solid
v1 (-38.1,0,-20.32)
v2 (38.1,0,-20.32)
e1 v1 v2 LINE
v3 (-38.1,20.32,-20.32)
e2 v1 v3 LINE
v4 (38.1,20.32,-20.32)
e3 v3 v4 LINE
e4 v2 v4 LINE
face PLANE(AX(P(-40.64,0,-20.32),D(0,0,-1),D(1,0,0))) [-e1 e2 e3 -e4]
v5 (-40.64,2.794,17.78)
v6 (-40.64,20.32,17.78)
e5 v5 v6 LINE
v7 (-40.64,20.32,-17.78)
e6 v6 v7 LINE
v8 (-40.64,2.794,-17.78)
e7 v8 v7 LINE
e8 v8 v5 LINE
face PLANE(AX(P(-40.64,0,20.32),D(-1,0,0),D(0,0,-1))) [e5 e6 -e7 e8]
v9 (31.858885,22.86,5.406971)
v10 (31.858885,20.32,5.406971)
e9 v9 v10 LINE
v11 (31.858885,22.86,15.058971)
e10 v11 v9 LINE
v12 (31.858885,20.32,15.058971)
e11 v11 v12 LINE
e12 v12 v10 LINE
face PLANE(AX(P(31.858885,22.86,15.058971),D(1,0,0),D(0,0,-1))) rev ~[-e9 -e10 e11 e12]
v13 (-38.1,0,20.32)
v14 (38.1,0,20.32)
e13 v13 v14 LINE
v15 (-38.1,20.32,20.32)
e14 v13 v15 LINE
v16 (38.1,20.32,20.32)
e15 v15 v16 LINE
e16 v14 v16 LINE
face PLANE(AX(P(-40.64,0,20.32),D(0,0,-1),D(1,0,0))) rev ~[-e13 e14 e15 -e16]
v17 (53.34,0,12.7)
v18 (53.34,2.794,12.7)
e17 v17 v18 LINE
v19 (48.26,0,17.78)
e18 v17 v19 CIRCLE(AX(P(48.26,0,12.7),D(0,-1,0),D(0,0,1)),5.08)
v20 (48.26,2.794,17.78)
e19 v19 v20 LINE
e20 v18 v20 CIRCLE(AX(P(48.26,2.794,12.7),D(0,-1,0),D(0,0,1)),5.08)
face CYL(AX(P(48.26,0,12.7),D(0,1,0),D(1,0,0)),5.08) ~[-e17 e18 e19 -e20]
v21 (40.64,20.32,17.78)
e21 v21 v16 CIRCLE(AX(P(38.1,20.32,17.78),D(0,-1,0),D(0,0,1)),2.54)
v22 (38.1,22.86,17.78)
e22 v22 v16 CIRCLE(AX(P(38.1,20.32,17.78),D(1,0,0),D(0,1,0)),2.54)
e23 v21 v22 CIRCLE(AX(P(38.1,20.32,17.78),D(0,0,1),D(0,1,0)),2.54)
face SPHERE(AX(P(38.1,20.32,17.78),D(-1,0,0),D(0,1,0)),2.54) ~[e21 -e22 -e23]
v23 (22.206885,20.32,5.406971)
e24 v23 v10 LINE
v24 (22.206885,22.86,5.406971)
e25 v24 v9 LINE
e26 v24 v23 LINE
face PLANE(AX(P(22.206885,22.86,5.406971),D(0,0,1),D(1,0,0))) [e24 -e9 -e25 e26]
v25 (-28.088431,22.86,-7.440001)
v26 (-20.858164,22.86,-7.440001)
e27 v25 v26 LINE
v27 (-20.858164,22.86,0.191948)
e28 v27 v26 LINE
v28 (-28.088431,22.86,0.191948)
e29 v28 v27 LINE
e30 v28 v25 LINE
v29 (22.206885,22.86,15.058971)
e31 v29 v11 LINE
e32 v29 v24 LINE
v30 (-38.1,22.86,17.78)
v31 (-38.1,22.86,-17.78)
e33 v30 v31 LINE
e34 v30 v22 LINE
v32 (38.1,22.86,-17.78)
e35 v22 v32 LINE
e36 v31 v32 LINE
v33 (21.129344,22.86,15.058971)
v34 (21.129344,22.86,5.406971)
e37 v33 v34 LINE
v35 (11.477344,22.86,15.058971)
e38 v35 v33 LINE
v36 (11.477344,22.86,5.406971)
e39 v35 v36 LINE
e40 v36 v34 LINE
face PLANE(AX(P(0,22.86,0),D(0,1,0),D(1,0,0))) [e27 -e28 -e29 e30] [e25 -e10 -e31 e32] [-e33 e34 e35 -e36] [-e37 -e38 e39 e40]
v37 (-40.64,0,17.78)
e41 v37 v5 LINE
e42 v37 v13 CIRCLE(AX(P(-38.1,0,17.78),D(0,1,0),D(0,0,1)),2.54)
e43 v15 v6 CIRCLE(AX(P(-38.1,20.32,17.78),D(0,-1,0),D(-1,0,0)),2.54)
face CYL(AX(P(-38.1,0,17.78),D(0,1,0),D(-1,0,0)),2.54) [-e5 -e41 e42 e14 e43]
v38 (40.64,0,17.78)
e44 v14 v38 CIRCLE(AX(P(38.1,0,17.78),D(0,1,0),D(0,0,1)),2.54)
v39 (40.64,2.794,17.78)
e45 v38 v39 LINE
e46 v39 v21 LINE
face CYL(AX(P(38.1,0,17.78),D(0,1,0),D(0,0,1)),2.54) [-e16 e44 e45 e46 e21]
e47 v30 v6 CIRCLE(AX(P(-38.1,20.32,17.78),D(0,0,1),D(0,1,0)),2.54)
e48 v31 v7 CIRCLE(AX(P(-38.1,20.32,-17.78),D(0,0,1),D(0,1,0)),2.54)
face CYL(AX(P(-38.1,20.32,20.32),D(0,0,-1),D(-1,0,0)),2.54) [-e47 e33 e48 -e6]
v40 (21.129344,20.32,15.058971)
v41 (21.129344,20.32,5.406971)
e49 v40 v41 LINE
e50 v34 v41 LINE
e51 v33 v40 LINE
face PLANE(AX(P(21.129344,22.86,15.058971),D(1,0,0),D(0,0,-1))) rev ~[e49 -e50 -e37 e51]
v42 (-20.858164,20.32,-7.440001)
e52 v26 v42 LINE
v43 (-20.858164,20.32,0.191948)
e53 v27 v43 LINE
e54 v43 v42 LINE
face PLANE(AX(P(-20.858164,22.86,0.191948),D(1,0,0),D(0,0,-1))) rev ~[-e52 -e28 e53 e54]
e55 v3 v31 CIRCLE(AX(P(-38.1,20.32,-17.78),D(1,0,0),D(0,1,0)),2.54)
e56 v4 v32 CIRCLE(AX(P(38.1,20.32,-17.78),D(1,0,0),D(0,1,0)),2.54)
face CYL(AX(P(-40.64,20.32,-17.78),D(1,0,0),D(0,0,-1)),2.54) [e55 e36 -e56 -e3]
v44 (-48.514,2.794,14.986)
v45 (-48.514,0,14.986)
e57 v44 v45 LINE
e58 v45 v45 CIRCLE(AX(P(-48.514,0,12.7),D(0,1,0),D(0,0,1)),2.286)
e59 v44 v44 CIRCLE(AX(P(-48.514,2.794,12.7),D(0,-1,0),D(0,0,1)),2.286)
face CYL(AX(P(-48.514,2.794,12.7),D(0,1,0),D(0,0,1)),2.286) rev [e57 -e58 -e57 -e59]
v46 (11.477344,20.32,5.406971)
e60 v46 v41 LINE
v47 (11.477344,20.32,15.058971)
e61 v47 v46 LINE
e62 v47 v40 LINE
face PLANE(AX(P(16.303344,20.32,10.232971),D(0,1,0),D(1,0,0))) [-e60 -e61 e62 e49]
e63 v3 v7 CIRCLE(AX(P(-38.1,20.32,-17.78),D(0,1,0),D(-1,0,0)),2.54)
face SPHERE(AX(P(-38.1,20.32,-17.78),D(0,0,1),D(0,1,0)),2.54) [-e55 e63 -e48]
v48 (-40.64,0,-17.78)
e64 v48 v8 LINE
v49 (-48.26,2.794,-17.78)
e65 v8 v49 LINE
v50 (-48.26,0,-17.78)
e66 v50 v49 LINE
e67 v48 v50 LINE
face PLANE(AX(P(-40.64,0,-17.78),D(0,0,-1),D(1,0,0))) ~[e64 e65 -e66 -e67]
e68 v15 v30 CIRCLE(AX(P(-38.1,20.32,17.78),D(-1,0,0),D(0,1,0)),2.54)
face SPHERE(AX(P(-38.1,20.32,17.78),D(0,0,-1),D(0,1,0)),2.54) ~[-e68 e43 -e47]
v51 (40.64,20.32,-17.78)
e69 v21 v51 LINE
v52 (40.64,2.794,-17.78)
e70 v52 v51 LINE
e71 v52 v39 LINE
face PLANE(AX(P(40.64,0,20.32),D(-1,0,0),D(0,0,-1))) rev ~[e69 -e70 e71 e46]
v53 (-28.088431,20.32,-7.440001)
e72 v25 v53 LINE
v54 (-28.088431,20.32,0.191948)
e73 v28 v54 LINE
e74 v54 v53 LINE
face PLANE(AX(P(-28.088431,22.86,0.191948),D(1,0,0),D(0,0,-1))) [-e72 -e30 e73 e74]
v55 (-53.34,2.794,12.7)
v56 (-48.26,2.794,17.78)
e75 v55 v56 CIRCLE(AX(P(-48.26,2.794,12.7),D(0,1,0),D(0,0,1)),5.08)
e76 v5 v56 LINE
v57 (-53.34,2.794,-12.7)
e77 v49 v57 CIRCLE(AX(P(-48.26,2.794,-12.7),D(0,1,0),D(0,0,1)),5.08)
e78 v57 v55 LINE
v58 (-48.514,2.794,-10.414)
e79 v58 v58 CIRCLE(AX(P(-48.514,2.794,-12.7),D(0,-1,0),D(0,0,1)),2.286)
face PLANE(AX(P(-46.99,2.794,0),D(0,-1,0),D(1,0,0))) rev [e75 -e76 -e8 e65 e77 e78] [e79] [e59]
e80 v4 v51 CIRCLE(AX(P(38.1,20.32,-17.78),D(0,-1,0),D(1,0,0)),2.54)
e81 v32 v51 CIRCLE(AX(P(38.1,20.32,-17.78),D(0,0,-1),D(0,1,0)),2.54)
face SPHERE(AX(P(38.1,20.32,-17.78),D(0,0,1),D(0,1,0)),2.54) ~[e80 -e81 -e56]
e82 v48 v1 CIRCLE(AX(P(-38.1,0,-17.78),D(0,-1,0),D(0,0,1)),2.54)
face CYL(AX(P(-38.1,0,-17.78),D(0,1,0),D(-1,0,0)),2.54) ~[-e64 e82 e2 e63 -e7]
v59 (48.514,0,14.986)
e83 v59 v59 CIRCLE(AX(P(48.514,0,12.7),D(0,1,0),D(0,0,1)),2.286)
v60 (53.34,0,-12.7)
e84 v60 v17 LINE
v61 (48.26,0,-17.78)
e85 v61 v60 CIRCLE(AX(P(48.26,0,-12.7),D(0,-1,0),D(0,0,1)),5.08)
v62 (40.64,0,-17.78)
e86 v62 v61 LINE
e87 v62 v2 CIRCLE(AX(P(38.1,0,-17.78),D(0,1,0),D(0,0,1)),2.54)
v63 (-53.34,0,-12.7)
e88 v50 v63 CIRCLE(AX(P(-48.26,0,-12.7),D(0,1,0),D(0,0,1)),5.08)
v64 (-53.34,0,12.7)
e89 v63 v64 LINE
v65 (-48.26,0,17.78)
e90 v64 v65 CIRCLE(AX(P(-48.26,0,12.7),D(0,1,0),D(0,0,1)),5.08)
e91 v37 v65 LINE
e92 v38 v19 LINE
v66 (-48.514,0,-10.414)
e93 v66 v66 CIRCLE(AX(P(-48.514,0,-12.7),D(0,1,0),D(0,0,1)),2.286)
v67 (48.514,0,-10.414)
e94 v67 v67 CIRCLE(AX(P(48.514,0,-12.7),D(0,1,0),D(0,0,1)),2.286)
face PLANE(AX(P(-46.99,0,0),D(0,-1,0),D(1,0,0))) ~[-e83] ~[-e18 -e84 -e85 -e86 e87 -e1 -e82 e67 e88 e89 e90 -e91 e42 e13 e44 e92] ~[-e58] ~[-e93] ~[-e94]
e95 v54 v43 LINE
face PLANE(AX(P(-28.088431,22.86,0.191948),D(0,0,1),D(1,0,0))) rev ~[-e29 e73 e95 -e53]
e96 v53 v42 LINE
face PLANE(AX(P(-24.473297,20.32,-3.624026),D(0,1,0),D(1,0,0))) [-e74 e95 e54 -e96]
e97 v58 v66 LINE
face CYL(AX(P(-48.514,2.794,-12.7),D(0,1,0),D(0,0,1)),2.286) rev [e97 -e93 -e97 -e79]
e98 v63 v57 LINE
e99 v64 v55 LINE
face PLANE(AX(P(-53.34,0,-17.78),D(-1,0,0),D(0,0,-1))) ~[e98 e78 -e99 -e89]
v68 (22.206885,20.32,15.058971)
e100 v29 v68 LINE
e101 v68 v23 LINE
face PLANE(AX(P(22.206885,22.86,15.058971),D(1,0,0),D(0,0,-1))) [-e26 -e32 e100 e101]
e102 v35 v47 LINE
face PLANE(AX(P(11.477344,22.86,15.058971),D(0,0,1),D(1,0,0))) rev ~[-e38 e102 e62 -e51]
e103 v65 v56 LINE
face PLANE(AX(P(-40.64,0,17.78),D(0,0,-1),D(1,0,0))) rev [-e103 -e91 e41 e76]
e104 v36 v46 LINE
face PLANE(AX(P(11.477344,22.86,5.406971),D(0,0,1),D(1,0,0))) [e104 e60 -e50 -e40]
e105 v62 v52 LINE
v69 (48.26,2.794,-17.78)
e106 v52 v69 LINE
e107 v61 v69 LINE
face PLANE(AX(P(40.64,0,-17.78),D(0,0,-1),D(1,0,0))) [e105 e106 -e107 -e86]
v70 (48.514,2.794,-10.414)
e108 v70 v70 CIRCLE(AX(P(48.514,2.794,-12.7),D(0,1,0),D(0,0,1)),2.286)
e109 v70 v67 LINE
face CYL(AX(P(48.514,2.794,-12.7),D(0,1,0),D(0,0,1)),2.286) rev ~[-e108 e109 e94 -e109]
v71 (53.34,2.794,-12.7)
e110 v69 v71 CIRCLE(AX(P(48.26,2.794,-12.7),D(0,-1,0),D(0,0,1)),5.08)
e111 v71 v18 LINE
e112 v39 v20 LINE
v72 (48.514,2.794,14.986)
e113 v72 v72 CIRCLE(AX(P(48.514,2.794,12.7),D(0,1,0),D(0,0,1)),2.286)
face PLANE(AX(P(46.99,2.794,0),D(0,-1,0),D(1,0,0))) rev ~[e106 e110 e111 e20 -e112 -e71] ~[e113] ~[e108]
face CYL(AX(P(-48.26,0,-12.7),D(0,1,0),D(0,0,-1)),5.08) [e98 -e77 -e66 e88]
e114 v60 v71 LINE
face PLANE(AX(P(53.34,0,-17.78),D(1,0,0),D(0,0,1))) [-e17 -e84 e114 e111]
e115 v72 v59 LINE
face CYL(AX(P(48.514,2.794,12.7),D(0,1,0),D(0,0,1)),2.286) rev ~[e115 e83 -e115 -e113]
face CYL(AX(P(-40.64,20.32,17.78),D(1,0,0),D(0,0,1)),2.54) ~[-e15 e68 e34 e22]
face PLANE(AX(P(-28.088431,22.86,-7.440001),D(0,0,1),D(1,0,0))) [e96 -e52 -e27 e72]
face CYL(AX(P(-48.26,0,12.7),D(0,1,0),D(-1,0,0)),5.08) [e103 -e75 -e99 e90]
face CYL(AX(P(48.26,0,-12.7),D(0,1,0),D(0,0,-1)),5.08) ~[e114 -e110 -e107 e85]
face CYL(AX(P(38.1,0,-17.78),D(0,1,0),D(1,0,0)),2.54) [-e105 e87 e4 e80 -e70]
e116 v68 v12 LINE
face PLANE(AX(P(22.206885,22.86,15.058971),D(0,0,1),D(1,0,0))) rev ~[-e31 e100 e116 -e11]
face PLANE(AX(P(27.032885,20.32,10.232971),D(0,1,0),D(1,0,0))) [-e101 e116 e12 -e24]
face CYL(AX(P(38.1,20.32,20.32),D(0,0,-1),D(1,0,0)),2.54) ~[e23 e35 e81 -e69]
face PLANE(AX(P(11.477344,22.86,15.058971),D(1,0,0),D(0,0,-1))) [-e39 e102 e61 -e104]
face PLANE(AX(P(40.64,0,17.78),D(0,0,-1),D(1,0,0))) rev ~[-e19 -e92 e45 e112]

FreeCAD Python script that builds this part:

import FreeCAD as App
import Part
import Sketcher
Q = App.Units.Quantity


def edges_at(feature, points):
    """Names of the edges that pass closest to the given points."""
    edges = feature.Shape.Edges
    near = lambda p: min(range(len(edges)), key=lambda i: edges[i].distToShape(Part.Vertex(*p))[0])
    return sorted({f"Edge{near(p) + 1}" for p in points})

doc = App.newDocument("Part")
body = doc.addObject("PartDesign::Body", "Body")

# Sketch on XZ plane
sketch1 = doc.addObject("Sketcher::SketchObject", "Sketch")
body.addObject(sketch1)
sketch1.AttachmentSupport = (doc.XZ_Plane, [""])
sketch1.MapMode = "FlatFace"
sketch1.addGeometry(Part.LineSegment(App.Vector(-40.64, -20.32, 0), App.Vector(-40.64, 20.32, 0)), False)
sketch1.addGeometry(Part.LineSegment(App.Vector(-40.64, 20.32, 0), App.Vector(40.64, 20.32, 0)), False)
sketch1.addGeometry(Part.LineSegment(App.Vector(40.64, 20.32, 0), App.Vector(40.64, -20.32, 0)), False)
sketch1.addGeometry(Part.LineSegment(App.Vector(40.64, -20.32, 0), App.Vector(-40.64, -20.32, 0)), False)
sketch1.addConstraint(Sketcher.Constraint("Coincident", 0, 2, 1, 1))
sketch1.addConstraint(Sketcher.Constraint("Coincident", 1, 2, 2, 1))
sketch1.addConstraint(Sketcher.Constraint("Coincident", 2, 2, 3, 1))
sketch1.addConstraint(Sketcher.Constraint("Coincident", 3, 2, 0, 1))
sketch1.addConstraint(Sketcher.Constraint("Vertical", 0))
sketch1.addConstraint(Sketcher.Constraint("Horizontal", 1))
sketch1.addConstraint(Sketcher.Constraint("Vertical", 2))
sketch1.addConstraint(Sketcher.Constraint("Horizontal", 3))
sketch1.addConstraint(Sketcher.Constraint("Symmetric", 0, 2, 2, 2, -1, 1))
sketch1.addConstraint(Sketcher.Constraint("DistanceX", 1, 1, 1, 2, Q("3.2 in")))
sketch1.addConstraint(Sketcher.Constraint("DistanceY", 0, 1, 0, 2, Q("1.6 in")))
pad1 = doc.addObject("PartDesign::Pad", "Pad")
body.addObject(pad1)
pad1.Profile = sketch1
pad1.Length = Q("0.9 in")
pad1.Reversed = True
doc.recompute()

fillet = doc.addObject("PartDesign::Fillet", "Fillet")
body.addObject(fillet)
fillet.Base = (pad1, edges_at(pad1, [
    (-40.64, 22.86, 0),
    (0, 22.86, 20.32),
    (40.64, 22.86, 0),
    (0, 22.86, -20.32),
    (40.64, 11.43, 20.32),
    (-40.64, 11.43, 20.32),
    (-40.64, 11.43, -20.32),
    (40.64, 11.43, -20.32),
]))
fillet.Radius = Q("0.1 in")

# Sketch on XZ plane
sketch2 = doc.addObject("Sketcher::SketchObject", "Sketch001")
body.addObject(sketch2)
sketch2.AttachmentSupport = (doc.XZ_Plane, [""])
sketch2.MapMode = "FlatFace"
sketch2.addGeometry(Part.LineSegment(App.Vector(40.64, 17.78, 0), App.Vector(40.64, -17.78, 0)), False)
sketch2.addGeometry(Part.LineSegment(App.Vector(40.64, -17.78, 0), App.Vector(53.34, -17.78, 0)), False)
sketch2.addGeometry(Part.LineSegment(App.Vector(53.34, -17.78, 0), App.Vector(53.34, 17.78, 0)), False)
sketch2.addGeometry(Part.LineSegment(App.Vector(53.34, 17.78, 0), App.Vector(40.64, 17.78, 0)), False)
sketch2.addConstraint(Sketcher.Constraint("Coincident", 0, 2, 1, 1))
sketch2.addConstraint(Sketcher.Constraint("Coincident", 1, 2, 2, 1))
sketch2.addConstraint(Sketcher.Constraint("Coincident", 2, 2, 3, 1))
sketch2.addConstraint(Sketcher.Constraint("Coincident", 3, 2, 0, 1))
sketch2.addConstraint(Sketcher.Constraint("Vertical", 0))
sketch2.addConstraint(Sketcher.Constraint("Horizontal", 1))
sketch2.addConstraint(Sketcher.Constraint("Vertical", 2))
sketch2.addConstraint(Sketcher.Constraint("Horizontal", 3))
sketch2.addConstraint(Sketcher.Constraint("DistanceX", 1, 1, 1, 2, Q("0.5 in")))
sketch2.addConstraint(Sketcher.Constraint("DistanceY", 0, 2, 0, 1, Q("1.4 in")))
sketch2.addConstraint(Sketcher.Constraint("DistanceX", -1, 1, 0, 2, Q("1.6 in")))
sketch2.addConstraint(Sketcher.Constraint("DistanceY", 0, 2, -1, 1, Q("0.7 in")))
pad2 = doc.addObject("PartDesign::Pad", "Pad001")
body.addObject(pad2)
pad2.Profile = sketch2
pad2.Length = Q("0.11 in")
pad2.Reversed = True
doc.recompute()

fillet2 = doc.addObject("PartDesign::Fillet", "Fillet001")
body.addObject(fillet2)
fillet2.Base = (pad2, edges_at(pad2, [(53.34, 1.397, 17.78), (53.34, 1.397, -17.78)]))
fillet2.Radius = Q("0.2 in")

# Sketch on XZ plane
sketch3 = doc.addObject("Sketcher::SketchObject", "Sketch002")
body.addObject(sketch3)
sketch3.AttachmentSupport = (doc.XZ_Plane, [""])
sketch3.MapMode = "FlatFace"
sketch3.AttachmentOffset = App.Placement(App.Vector(0, 0, -0.11 * 25.4), App.Rotation())
sketch3.addGeometry(Part.Circle(App.Vector(48.514, -12.7, 0), App.Vector(0, 0, 1), 2.286), False)
sketch3.addGeometry(Part.Circle(App.Vector(48.514, 12.7, 0), App.Vector(0, 0, 1), 2.286), False)
sketch3.addConstraint(Sketcher.Constraint("Equal", 0, 1))
sketch3.addConstraint(Sketcher.Constraint("Symmetric", 0, 3, 1, 3, -1))
sketch3.addConstraint(Sketcher.Constraint("Diameter", 0, Q("0.18 in")))
sketch3.addConstraint(Sketcher.Constraint("DistanceY", 0, 3, 1, 3, Q("1 in")))
sketch3.addConstraint(Sketcher.Constraint("DistanceX", -1, 1, 0, 3, Q("1.91 in")))
pocket1 = doc.addObject("PartDesign::Pocket", "Pocket")
body.addObject(pocket1)
pocket1.Profile = sketch3
pocket1.Type = "ThroughAll"
pocket1.Reversed = True
doc.recompute()

mirrored = doc.addObject("PartDesign::Mirrored", "Mirrored")
body.addObject(mirrored)
mirrored.Originals = [pad2, pocket1]
mirrored.MirrorPlane = (doc.YZ_Plane, [""])
body.Tip = mirrored
doc.recompute()

fillet3 = doc.addObject("PartDesign::Fillet", "Fillet002")
body.addObject(fillet3)
fillet3.Base = (mirrored, edges_at(mirrored, [(-53.34, 1.397, 17.78), (-53.34, 1.397, -17.78)]))
fillet3.Radius = Q("0.2 in")

# Sketch on XZ plane
sketch4 = doc.addObject("Sketcher::SketchObject", "Sketch003")
body.addObject(sketch4)
sketch4.AttachmentSupport = (doc.XZ_Plane, [""])
sketch4.MapMode = "FlatFace"
sketch4.AttachmentOffset = App.Placement(App.Vector(0, 0, -0.9 * 25.4), App.Rotation())
sketch4.addGeometry(Part.LineSegment(App.Vector(-28.088431, -7.440001, 0), App.Vector(-28.088431, 0.191948, 0)), False)
sketch4.addGeometry(Part.LineSegment(App.Vector(-28.088431, 0.191948, 0), App.Vector(-20.858164, 0.191948, 0)), False)
sketch4.addGeometry(Part.LineSegment(App.Vector(-20.858164, 0.191948, 0), App.Vector(-20.858164, -7.440001, 0)), False)
sketch4.addGeometry(Part.LineSegment(App.Vector(-20.858164, -7.440001, 0), App.Vector(-28.088431, -7.440001, 0)), False)
sketch4.addGeometry(Part.LineSegment(App.Vector(11.477344, 5.406971, 0), App.Vector(11.477344, 15.058971, 0)), False)
sketch4.addGeometry(Part.LineSegment(App.Vector(11.477344, 15.058971, 0), App.Vector(21.129344, 15.058971, 0)), False)
sketch4.addGeometry(Part.LineSegment(App.Vector(21.129344, 15.058971, 0), App.Vector(21.129344, 5.406971, 0)), False)
sketch4.addGeometry(Part.LineSegment(App.Vector(21.129344, 5.406971, 0), App.Vector(11.477344, 5.406971, 0)), False)
sketch4.addGeometry(Part.LineSegment(App.Vector(22.206885, 5.406971, 0), App.Vector(22.206885, 15.058971, 0)), False)
sketch4.addGeometry(Part.LineSegment(App.Vector(22.206885, 15.058971, 0), App.Vector(31.858885, 15.058971, 0)), False)
sketch4.addGeometry(Part.LineSegment(App.Vector(31.858885, 15.058971, 0), App.Vector(31.858885, 5.406971, 0)), False)
sketch4.addGeometry(Part.LineSegment(App.Vector(31.858885, 5.406971, 0), App.Vector(22.206885, 5.406971, 0)), False)
sketch4.addConstraint(Sketcher.Constraint("Coincident", 0, 2, 1, 1))
sketch4.addConstraint(Sketcher.Constraint("Coincident", 1, 2, 2, 1))
sketch4.addConstraint(Sketcher.Constraint("Coincident", 2, 2, 3, 1))
sketch4.addConstraint(Sketcher.Constraint("Coincident", 3, 2, 0, 1))
sketch4.addConstraint(Sketcher.Constraint("Coincident", 4, 2, 5, 1))
sketch4.addConstraint(Sketcher.Constraint("Coincident", 5, 2, 6, 1))
sketch4.addConstraint(Sketcher.Constraint("Coincident", 6, 2, 7, 1))
sketch4.addConstraint(Sketcher.Constraint("Coincident", 7, 2, 4, 1))
sketch4.addConstraint(Sketcher.Constraint("Coincident", 8, 2, 9, 1))
sketch4.addConstraint(Sketcher.Constraint("Coincident", 9, 2, 10, 1))
sketch4.addConstraint(Sketcher.Constraint("Coincident", 10, 2, 11, 1))
sketch4.addConstraint(Sketcher.Constraint("Coincident", 11, 2, 8, 1))
sketch4.addConstraint(Sketcher.Constraint("Vertical", 0))
sketch4.addConstraint(Sketcher.Constraint("Horizontal", 1))
sketch4.addConstraint(Sketcher.Constraint("Vertical", 2))
sketch4.addConstraint(Sketcher.Constraint("Horizontal", 3))
sketch4.addConstraint(Sketcher.Constraint("Vertical", 4))
sketch4.addConstraint(Sketcher.Constraint("Horizontal", 5))
sketch4.addConstraint(Sketcher.Constraint("Vertical", 6))
sketch4.addConstraint(Sketcher.Constraint("Horizontal", 7))
sketch4.addConstraint(Sketcher.Constraint("Vertical", 8))
sketch4.addConstraint(Sketcher.Constraint("Horizontal", 9))
sketch4.addConstraint(Sketcher.Constraint("Vertical", 10))
sketch4.addConstraint(Sketcher.Constraint("Horizontal", 11))
sketch4.addConstraint(Sketcher.Constraint("Horizontal", 5, 2, 8, 2))
sketch4.addConstraint(Sketcher.Constraint("Horizontal", 7, 2, 10, 2))
sketch4.addConstraint(Sketcher.Constraint("Equal", 7, 9))
sketch4.addConstraint(Sketcher.Constraint("Equal", 11, 4))
sketch4.addConstraint(Sketcher.Constraint("DistanceX", 5, 1, 5, 2, Q("0.38 in")))
sketch4.addConstraint(Sketcher.Constraint("DistanceY", 0, 1, 0, 2, 7.631948))
sketch4.addConstraint(Sketcher.Constraint("DistanceY", 2, 2, -1, 1, 7.440001))
sketch4.addConstraint(Sketcher.Constraint("DistanceX", 1, 1, 1, 2, 7.230267))
sketch4.addConstraint(Sketcher.Constraint("DistanceX", 0, 2, -1, 1, 28.088431))
sketch4.addConstraint(Sketcher.Constraint("DistanceY", -1, 1, 4, 2, 15.058971))
sketch4.addConstraint(Sketcher.Constraint("DistanceX", 5, 2, 8, 2, 1.077542))
sketch4.addConstraint(Sketcher.Constraint("DistanceX", 1, 2, 8, 2, 43.065049))
pocket2 = doc.addObject("PartDesign::Pocket", "Pocket001")
body.addObject(pocket2)
pocket2.Profile = sketch4
pocket2.Length = Q("0.1 in")
pocket2.Reversed = True

doc.recompute()
